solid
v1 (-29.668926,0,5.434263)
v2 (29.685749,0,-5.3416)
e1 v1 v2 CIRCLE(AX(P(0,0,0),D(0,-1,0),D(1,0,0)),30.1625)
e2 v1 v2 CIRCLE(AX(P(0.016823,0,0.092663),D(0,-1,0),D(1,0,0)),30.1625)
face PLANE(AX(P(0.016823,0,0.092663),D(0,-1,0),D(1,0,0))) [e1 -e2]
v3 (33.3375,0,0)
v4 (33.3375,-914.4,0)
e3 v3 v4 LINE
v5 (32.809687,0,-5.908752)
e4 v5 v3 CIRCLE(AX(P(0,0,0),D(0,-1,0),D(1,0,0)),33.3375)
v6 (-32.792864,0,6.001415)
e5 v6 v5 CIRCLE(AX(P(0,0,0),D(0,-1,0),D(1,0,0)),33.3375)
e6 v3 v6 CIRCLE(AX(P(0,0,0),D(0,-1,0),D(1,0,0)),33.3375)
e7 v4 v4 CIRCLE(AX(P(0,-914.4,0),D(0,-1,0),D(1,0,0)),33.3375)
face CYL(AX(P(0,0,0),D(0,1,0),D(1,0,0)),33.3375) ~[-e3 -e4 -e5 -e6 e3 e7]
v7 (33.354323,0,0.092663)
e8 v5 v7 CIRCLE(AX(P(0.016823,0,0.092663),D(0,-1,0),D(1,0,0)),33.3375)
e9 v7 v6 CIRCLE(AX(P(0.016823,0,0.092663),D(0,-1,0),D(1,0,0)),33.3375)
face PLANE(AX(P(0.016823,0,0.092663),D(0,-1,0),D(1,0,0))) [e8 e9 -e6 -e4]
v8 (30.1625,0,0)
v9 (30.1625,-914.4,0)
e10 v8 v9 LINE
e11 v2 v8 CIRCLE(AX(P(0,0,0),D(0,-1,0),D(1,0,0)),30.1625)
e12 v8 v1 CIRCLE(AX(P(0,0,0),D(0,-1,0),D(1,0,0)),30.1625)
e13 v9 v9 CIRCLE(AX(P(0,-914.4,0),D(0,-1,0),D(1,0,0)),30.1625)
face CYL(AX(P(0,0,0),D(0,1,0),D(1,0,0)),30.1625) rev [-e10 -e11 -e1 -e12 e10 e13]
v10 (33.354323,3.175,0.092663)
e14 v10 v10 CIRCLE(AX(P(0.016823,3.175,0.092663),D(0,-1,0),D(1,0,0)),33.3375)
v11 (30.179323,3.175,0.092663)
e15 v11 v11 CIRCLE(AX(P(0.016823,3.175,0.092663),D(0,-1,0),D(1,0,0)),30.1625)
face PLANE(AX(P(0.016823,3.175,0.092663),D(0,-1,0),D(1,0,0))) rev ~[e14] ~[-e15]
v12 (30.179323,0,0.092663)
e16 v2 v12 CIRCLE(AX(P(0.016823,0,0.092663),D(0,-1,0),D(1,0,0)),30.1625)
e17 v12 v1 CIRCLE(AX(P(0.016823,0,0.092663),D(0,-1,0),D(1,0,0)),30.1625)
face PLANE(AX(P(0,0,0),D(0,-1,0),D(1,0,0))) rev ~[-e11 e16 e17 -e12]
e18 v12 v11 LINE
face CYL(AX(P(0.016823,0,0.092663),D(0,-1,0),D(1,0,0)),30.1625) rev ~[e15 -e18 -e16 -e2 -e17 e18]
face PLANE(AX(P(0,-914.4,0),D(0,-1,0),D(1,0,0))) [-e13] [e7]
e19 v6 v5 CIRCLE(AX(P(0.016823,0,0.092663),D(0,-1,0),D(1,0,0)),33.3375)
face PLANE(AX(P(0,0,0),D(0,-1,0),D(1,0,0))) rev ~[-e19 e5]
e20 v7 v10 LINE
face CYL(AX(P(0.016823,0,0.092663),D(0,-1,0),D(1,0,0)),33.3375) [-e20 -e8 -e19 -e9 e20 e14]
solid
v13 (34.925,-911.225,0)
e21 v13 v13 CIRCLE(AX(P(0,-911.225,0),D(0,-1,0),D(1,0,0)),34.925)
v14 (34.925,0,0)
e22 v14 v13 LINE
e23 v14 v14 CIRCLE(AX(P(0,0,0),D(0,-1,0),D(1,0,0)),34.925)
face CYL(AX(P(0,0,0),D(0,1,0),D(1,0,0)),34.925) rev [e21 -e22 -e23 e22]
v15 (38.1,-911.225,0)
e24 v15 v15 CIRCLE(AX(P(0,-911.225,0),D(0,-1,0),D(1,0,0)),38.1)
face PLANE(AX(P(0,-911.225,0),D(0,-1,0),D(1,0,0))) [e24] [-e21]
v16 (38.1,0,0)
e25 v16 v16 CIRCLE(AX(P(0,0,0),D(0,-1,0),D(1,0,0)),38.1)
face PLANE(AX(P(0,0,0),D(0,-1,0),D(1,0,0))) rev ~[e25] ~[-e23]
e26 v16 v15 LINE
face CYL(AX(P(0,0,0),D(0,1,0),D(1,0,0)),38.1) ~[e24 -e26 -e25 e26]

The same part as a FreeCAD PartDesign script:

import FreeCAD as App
import Part
import Sketcher
Q = App.Units.Quantity

doc = App.newDocument("Part")
body = doc.addObject("PartDesign::Body", "Body")

# Sketch on XZ plane
sketch1 = body.newObject("Sketcher::SketchObject", "Sketch")
sketch1.AttachmentSupport = (doc.getObject("XZ_Plane"), [""])
sketch1.MapMode = "FlatFace"
sketch1.addGeometry(Part.Circle(App.Vector(0, 0, 0), App.Vector(0, 0, 1), 38.1), False)
sketch1.addGeometry(Part.Circle(App.Vector(0, 0, 0), App.Vector(0, 0, 1), 34.925), False)
sketch1.addConstraint(Sketcher.Constraint("Coincident", 0, 3, -1, 1))
sketch1.addConstraint(Sketcher.Constraint("Coincident", 1, 3, -1, 1))
sketch1.addConstraint(Sketcher.Constraint("Diameter", 0, Q("3 in")))
sketch1.addConstraint(Sketcher.Constraint("Diameter", 1, Q("2.75 in")))
pad1 = body.newObject("PartDesign::Pad", "Pad")
pad1.Profile = sketch1
pad1.Length = Q("35.875 in")
body2 = doc.addObject("PartDesign::Body", "Body001")

# Sketch on XZ plane
sketch2 = body2.newObject("Sketcher::SketchObject", "Sketch001")
sketch2.AttachmentSupport = (doc.getObject("XZ_Plane001"), [""])
sketch2.MapMode = "FlatFace"
sketch2.addGeometry(Part.Circle(App.Vector(0, 0, 0), App.Vector(0, 0, 1), 33.3375), False)
sketch2.addGeometry(Part.Circle(App.Vector(0, 0, 0), App.Vector(0, 0, 1), 30.1625), False)
sketch2.addConstraint(Sketcher.Constraint("Coincident", 0, 3, -1, 1))
sketch2.addConstraint(Sketcher.Constraint("Coincident", 1, 3, -1, 1))
sketch2.addConstraint(Sketcher.Constraint("Diameter", 0, Q("2.625 in")))
sketch2.addConstraint(Sketcher.Constraint("Diameter", 1, Q("2.375 in")))
pad2 = body2.newObject("PartDesign::Pad", "Pad001")
pad2.Profile = sketch2
pad2.Length = Q("36 in")

# Sketch on XZ plane
sketch3 = body2.newObject("Sketcher::SketchObject", "Sketch002")
sketch3.AttachmentSupport = (doc.getObject("XZ_Plane001"), [""])
sketch3.MapMode = "FlatFace"
sketch3.addGeometry(Part.Circle(App.Vector(0.016823, 0.092663, 0), App.Vector(0, 0, 1), 33.3375), False)
sketch3.addGeometry(Part.Circle(App.Vector(0.016823, 0.092663, 0), App.Vector(0, 0, 1), 30.1625), False)
sketch3.addConstraint(Sketcher.Constraint("Coincident", 1, 3, 0, 3))
sketch3.addConstraint(Sketcher.Constraint("Diameter", 0, Q("2.625 in")))
sketch3.addConstraint(Sketcher.Constraint("Diameter", 1, Q("2.375 in")))
sketch3.addConstraint(Sketcher.Constraint("DistanceX", -1, 1, 0, 3, Q("0.016823 mm")))
sketch3.addConstraint(Sketcher.Constraint("DistanceY", -1, 1, 0, 3, Q("0.092663 mm")))
pad3 = body2.newObject("PartDesign::Pad", "Pad002")
pad3.Profile = sketch3
pad3.Length = Q("0.125 in")
pad3.Reversed = True

doc.recompute()
